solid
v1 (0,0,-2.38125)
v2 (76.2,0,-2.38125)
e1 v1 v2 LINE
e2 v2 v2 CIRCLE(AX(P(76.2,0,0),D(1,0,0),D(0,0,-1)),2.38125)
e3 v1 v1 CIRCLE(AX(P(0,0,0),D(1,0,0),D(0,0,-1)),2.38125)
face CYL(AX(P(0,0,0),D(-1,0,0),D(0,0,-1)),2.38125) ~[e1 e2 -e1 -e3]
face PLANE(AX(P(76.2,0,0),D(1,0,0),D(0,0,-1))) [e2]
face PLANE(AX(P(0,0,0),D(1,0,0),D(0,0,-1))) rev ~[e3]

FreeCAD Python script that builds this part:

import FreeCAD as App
import Part
import Sketcher
from FreeCAD import Vector
Q = App.Units.Quantity

doc = App.newDocument("Part")
body = doc.addObject("PartDesign::Body", "Body")

# Sketch on YZ plane
sketch1 = body.newObject("Sketcher::SketchObject", "Sketch")
sketch1.AttachmentSupport = (doc.getObject("YZ_Plane"), [""])
sketch1.MapMode = "FlatFace"
sketch1.addGeometry(Part.Circle(Vector(0, 0, 0), Vector(0, 0, 1), 2.4), False)
sketch1.addConstraint(Sketcher.Constraint("Coincident", 0, 3, -1, 1))
sketch1.addConstraint(Sketcher.Constraint("Diameter", 0, Q("0.1875 in")))
pad1 = body.newObject("PartDesign::Pad", "Pad")
pad1.Profile = sketch1
pad1.Length = Q("3 in")

doc.recompute()
